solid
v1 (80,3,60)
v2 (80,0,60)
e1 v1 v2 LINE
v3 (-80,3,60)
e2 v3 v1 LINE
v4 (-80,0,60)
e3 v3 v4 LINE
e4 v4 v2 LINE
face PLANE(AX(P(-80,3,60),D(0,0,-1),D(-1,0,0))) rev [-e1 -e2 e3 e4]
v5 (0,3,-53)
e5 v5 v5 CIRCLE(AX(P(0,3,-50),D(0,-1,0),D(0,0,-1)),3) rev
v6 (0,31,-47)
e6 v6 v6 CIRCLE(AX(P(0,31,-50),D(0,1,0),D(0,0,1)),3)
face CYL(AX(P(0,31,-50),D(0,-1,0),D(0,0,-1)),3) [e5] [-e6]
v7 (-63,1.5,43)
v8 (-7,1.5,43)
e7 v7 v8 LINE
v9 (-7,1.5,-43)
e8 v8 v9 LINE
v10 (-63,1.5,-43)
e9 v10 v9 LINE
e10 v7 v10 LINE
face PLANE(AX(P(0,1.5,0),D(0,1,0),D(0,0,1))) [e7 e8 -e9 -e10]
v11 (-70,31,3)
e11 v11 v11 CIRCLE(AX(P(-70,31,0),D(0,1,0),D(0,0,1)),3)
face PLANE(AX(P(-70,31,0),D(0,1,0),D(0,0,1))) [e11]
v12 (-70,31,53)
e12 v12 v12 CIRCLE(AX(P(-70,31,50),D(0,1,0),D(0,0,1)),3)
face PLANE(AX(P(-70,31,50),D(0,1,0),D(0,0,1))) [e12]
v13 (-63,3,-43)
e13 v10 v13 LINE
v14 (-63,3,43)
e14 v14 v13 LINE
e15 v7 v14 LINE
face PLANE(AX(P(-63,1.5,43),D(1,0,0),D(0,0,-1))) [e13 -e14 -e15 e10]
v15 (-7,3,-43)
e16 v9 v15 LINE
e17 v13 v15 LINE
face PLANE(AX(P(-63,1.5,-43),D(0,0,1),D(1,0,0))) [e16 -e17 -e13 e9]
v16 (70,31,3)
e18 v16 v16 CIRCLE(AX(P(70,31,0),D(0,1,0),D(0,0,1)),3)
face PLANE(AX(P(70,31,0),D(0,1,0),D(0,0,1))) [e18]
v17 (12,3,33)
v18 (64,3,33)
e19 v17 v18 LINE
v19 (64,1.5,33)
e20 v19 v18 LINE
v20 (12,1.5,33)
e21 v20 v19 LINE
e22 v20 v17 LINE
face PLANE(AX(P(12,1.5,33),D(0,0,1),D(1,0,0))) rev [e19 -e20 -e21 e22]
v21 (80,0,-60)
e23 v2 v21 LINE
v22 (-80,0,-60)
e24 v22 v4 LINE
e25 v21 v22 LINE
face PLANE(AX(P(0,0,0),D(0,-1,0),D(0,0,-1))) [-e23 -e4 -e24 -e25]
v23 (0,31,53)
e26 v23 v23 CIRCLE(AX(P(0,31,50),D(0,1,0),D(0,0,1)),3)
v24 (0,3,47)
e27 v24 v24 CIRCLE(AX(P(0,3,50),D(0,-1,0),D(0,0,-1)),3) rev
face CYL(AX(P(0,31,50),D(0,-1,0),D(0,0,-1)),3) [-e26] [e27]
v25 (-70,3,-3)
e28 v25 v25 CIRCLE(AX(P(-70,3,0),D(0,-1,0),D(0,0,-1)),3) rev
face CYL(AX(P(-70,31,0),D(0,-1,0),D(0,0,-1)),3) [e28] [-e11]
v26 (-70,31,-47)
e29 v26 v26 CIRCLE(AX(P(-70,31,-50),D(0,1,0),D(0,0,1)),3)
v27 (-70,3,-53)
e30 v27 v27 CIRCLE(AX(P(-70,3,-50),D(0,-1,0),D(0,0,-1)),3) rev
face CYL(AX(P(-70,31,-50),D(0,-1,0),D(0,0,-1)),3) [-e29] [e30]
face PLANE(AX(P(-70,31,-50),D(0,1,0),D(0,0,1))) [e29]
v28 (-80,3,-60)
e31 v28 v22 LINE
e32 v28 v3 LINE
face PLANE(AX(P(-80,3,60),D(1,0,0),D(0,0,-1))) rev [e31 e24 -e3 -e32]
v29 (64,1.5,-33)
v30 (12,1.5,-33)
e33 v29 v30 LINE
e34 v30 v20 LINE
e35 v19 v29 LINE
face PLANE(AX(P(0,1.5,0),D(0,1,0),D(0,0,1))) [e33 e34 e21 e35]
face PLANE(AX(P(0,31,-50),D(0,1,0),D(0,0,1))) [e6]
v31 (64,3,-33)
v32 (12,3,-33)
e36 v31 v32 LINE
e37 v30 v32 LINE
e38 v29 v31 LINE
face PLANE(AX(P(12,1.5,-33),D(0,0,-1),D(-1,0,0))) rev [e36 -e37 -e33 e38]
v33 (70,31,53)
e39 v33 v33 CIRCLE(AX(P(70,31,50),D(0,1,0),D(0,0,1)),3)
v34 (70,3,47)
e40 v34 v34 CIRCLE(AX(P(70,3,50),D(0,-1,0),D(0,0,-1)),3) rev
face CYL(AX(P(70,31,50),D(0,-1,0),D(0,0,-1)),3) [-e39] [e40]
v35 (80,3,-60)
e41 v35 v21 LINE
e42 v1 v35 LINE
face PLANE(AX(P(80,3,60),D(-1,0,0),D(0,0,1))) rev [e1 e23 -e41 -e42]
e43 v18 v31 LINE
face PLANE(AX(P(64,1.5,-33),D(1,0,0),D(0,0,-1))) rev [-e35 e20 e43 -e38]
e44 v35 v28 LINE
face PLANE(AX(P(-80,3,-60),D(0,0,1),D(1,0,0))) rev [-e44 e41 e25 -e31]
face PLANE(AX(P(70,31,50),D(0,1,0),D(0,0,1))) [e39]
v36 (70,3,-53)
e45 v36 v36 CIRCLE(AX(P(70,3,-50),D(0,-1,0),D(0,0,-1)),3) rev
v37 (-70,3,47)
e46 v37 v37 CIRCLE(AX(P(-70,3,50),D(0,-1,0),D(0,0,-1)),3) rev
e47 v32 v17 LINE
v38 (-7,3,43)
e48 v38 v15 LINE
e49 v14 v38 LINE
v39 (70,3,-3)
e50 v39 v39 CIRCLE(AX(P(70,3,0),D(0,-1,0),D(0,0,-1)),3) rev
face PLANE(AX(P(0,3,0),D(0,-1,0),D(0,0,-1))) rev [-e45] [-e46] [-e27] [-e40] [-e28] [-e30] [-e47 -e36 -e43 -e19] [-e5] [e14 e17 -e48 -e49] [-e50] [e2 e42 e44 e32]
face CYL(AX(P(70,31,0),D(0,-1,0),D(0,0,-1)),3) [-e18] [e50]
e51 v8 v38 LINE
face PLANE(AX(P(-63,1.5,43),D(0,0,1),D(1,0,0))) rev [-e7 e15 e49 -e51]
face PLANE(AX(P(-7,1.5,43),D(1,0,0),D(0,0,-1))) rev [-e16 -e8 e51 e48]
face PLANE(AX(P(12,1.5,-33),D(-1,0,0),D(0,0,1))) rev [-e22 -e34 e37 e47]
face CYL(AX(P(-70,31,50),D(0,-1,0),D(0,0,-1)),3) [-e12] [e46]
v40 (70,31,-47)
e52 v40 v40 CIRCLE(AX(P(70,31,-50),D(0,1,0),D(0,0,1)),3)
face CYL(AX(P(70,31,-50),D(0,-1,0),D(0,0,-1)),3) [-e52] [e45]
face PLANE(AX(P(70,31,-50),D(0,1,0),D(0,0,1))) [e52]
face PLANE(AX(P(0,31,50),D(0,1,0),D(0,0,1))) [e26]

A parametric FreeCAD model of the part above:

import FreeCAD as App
import Part
import Sketcher

V = App.Vector


def add_polygon(sketch, points):
    """Adds a closed chain of lines whose ends are joined by coincident constraints."""
    first, n = sketch.GeometryCount, len(points)
    for a, b in zip(points, points[1:] + points[:1]):
        sketch.addGeometry(Part.LineSegment(App.Vector(*a, 0), App.Vector(*b, 0)), False)
    for i in range(n):
        sketch.addConstraint(Sketcher.Constraint("Coincident", first + i, 2, first + (i + 1) % n, 1))

doc = App.newDocument("Part")
body = doc.addObject("PartDesign::Body", "Body")

# Sketch on XZ plane
sketch1 = body.newObject("Sketcher::SketchObject", "Sketch")
sketch1.AttachmentSupport = (doc.getObject("XZ_Plane"), [""])
sketch1.MapMode = "FlatFace"
add_polygon(sketch1, [(-80, -60), (-80, 60), (80, 60), (80, -60)])  # lines 0-3
sketch1.addConstraint([
    Sketcher.Constraint("Vertical", 0),
    Sketcher.Constraint("Horizontal", 1),
    Sketcher.Constraint("Vertical", 2),
    Sketcher.Constraint("Horizontal", 3),
    Sketcher.Constraint("Symmetric", 0, 2, 2, 2, -1, 1),
    Sketcher.Constraint("DistanceX", 1, 1, 1, 2, 160.0),
    Sketcher.Constraint("DistanceY", 0, 1, 0, 2, 120.0),
])
pad1 = body.newObject("PartDesign::Pad", "Pad")
pad1.Profile = sketch1
pad1.Length = 3
pad1.Reversed = True

# Sketch on XZ plane
sketch2 = body.newObject("Sketcher::SketchObject", "Sketch001")
sketch2.AttachmentSupport = (doc.getObject("XZ_Plane"), [""])
sketch2.MapMode = "FlatFace"
sketch2.AttachmentOffset = App.Placement(V(0, 0, -3), App.Rotation())
sketch2.addGeometry([
    Part.Circle(V(-70, -50, 0), V(0, 0, 1), 3),  # 0
    Part.Circle(V(0, -50, 0), V(0, 0, 1), 3),  # 1
    Part.Circle(V(70, -50, 0), V(0, 0, 1), 3),  # 2
    Part.Circle(V(-70, 0, 0), V(0, 0, 1), 3),  # 3
    Part.Circle(V(70, 0, 0), V(0, 0, 1), 3),  # 4
    Part.Circle(V(-70, 50, 0), V(0, 0, 1), 3),  # 5
    Part.Circle(V(0, 50, 0), V(0, 0, 1), 3),  # 6
    Part.Circle(V(70, 50, 0), V(0, 0, 1), 3),  # 7
], False)
sketch2.addConstraint([
    Sketcher.Constraint("Equal", 0, 1),
    Sketcher.Constraint("Equal", 1, 2),
    Sketcher.Constraint("Equal", 2, 3),
    Sketcher.Constraint("Equal", 3, 4),
    Sketcher.Constraint("Equal", 4, 5),
    Sketcher.Constraint("Equal", 5, 6),
    Sketcher.Constraint("Equal", 6, 7),
    Sketcher.Constraint("Symmetric", 3, 3, 4, 3, -1, 1),
    Sketcher.Constraint("Symmetric", 2, 3, 5, 3, -1, 1),
    Sketcher.Constraint("Symmetric", 1, 3, 6, 3, -1, 1),
    Sketcher.Constraint("Symmetric", 0, 3, 7, 3, -1, 1),
    Sketcher.Constraint("Symmetric", 0, 3, 2, 3, -2),
    Sketcher.Constraint("PointOnObject", 1, 3, -2),
    Sketcher.Constraint("PointOnObject", 3, 3, -1),
    Sketcher.Constraint("Horizontal", 0, 3, 1, 3),
    Sketcher.Constraint("Vertical", 0, 3, 3, 3),
    Sketcher.Constraint("Diameter", 0, 6.0),
    Sketcher.Constraint("DistanceX", 0, 3, -1, 1, 70.0),
    Sketcher.Constraint("DistanceY", 0, 3, -1, 1, 50.0),
])
pad2 = body.newObject("PartDesign::Pad", "Pad001")
pad2.Profile = sketch2
pad2.Length = 28
pad2.Reversed = True

# Sketch on XZ plane
sketch3 = body.newObject("Sketcher::SketchObject", "Sketch002")
sketch3.AttachmentSupport = (doc.getObject("XZ_Plane"), [""])
sketch3.MapMode = "FlatFace"
sketch3.AttachmentOffset = App.Placement(V(0, 0, -3), App.Rotation())
add_polygon(sketch3, [(-63, -43), (-63, 43), (-7, 43), (-7, -43)])  # lines 0-3
sketch3.addConstraint([
    Sketcher.Constraint("Vertical", 0),
    Sketcher.Constraint("Horizontal", 1),
    Sketcher.Constraint("Vertical", 2),
    Sketcher.Constraint("Horizontal", 3),
    Sketcher.Constraint("DistanceX", 1, 1, 1, 2, 56.0),
    Sketcher.Constraint("DistanceY", 0, 1, 0, 2, 86.0),
    Sketcher.Constraint("DistanceX", 0, 2, -1, 1, 63.0),
    Sketcher.Constraint("DistanceY", -1, 1, 0, 2, 43.0),
])
pocket1 = body.newObject("PartDesign::Pocket", "Pocket")
pocket1.Profile = sketch3
pocket1.Length = 1.5
pocket1.Reversed = True

# Sketch on XZ plane
sketch4 = body.newObject("Sketcher::SketchObject", "Sketch003")
sketch4.AttachmentSupport = (doc.getObject("XZ_Plane"), [""])
sketch4.MapMode = "FlatFace"
sketch4.AttachmentOffset = App.Placement(V(0, 0, -3), App.Rotation())
add_polygon(sketch4, [(12, -33), (12, 33), (64, 33), (64, -33)])  # lines 0-3
sketch4.addConstraint([
    Sketcher.Constraint("Vertical", 0),
    Sketcher.Constraint("Horizontal", 1),
    Sketcher.Constraint("Vertical", 2),
    Sketcher.Constraint("Horizontal", 3),
    Sketcher.Constraint("DistanceX", 1, 1, 1, 2, 52.0),
    Sketcher.Constraint("DistanceY", 0, 1, 0, 2, 66.0),
    Sketcher.Constraint("DistanceX", -1, 1, 0, 2, 12.0),
    Sketcher.Constraint("DistanceY", -1, 1, 0, 2, 33.0),
])
pocket2 = body.newObject("PartDesign::Pocket", "Pocket001")
pocket2.Profile = sketch4
pocket2.Length = 1.5
pocket2.Reversed = True

doc.recompute()
